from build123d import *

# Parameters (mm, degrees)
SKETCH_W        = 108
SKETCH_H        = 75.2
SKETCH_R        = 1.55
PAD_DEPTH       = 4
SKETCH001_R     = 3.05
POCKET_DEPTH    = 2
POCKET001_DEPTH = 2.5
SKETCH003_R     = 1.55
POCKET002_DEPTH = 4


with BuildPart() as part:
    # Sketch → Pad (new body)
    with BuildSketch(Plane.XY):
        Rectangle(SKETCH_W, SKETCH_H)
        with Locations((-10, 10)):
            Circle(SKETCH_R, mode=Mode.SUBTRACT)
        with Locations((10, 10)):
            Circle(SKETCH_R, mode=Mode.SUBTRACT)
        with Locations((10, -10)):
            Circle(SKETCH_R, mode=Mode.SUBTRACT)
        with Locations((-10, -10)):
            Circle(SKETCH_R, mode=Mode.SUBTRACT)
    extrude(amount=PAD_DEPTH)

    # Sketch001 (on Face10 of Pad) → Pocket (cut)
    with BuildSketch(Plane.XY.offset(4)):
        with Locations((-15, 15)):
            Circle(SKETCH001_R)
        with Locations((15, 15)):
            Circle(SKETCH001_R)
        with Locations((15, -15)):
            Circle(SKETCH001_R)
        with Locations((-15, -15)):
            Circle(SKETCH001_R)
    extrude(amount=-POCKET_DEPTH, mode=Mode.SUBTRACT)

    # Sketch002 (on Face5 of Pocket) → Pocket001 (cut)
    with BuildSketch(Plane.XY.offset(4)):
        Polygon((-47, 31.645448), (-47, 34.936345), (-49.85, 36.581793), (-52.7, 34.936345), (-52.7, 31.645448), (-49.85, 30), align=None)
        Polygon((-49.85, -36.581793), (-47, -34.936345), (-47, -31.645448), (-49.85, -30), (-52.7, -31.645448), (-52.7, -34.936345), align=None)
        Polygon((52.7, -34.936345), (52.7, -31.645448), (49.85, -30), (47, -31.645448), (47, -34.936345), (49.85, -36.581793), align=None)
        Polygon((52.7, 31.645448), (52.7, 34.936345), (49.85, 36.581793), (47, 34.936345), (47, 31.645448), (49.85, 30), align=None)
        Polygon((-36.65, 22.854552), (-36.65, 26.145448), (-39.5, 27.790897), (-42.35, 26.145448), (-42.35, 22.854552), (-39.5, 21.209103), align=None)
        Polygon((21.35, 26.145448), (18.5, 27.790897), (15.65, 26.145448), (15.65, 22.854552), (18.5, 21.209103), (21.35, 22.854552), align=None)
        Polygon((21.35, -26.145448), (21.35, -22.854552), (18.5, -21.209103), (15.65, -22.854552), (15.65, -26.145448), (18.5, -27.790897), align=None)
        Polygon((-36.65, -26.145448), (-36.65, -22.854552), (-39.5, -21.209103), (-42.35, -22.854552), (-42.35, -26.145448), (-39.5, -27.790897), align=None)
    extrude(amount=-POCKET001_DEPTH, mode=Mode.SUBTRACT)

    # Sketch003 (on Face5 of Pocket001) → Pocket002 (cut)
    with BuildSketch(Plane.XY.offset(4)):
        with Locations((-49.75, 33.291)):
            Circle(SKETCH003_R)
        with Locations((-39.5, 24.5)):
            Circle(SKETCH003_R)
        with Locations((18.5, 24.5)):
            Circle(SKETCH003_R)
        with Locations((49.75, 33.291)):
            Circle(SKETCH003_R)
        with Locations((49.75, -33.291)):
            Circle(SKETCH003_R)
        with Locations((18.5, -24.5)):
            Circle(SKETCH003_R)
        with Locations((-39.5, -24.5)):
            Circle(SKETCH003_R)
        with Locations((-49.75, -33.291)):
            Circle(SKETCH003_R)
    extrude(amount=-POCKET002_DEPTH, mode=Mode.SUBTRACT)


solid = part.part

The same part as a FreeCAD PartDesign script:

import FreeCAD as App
import Part
import Sketcher

V = App.Vector
Q = App.Units.Quantity

doc = App.newDocument("Part")
body = doc.addObject("PartDesign::Body", "Body")

# Sketch on XY plane
sketch1 = body.newObject("Sketcher::SketchObject", "Sketch")
sketch1.AttachmentSupport = (doc.getObject("XY_Plane"), [""])
sketch1.MapMode = "FlatFace"
sketch1.addGeometry([
    Part.LineSegment(V(-54, 37.6, 0), V(-54, -37.6, 0)),  # 0
    Part.LineSegment(V(-54, -37.6, 0), V(54, -37.6, 0)),  # 1
    Part.LineSegment(V(54, -37.6, 0), V(54, 37.6, 0)),  # 2
    Part.LineSegment(V(54, 37.6, 0), V(-54, 37.6, 0)),  # 3
    Part.Circle(V(-10, -10, 0), V(0, 0, 1), 1.55),  # 4
    Part.Circle(V(10, -10, 0), V(0, 0, 1), 1.55),  # 5
    Part.Circle(V(-10, 10, 0), V(0, 0, 1), 1.55),  # 6
    Part.Circle(V(10, 10, 0), V(0, 0, 1), 1.55),  # 7
], False)
sketch1.addConstraint([
    Sketcher.Constraint("Coincident", 0, 2, 1, 1),
    Sketcher.Constraint("Coincident", 1, 2, 2, 1),
    Sketcher.Constraint("Coincident", 2, 2, 3, 1),
    Sketcher.Constraint("Coincident", 3, 2, 0, 1),
    Sketcher.Constraint("Vertical", 0),
    Sketcher.Constraint("Horizontal", 1),
    Sketcher.Constraint("Vertical", 2),
    Sketcher.Constraint("Horizontal", 3),
    Sketcher.Constraint("Equal", 4, 5),
    Sketcher.Constraint("Equal", 5, 6),
    Sketcher.Constraint("Equal", 6, 7),
    Sketcher.Constraint("Symmetric", 5, 3, 6, 3, -1, 1),
    Sketcher.Constraint("Symmetric", 4, 3, 7, 3, -1, 1),
    Sketcher.Constraint("Symmetric", 0, 2, 2, 2, -1, 1),
    Sketcher.Constraint("Symmetric", 4, 3, 5, 3, -2),
    Sketcher.Constraint("Diameter", 4, Q("3.1 mm")),
    Sketcher.Constraint("DistanceX", 1, 1, 1, 2, Q("108 mm")),
    Sketcher.Constraint("DistanceY", 0, 2, 0, 1, Q("75.2 mm")),
    Sketcher.Constraint("DistanceX", 4, 3, -1, 1, Q("10 mm")),
    Sketcher.Constraint("DistanceY", 4, 3, -1, 1, Q("10 mm")),
])
pad1 = body.newObject("PartDesign::Pad", "Pad")
pad1.Profile = sketch1
pad1.Length = 4

# Sketch on XY plane
sketch2 = body.newObject("Sketcher::SketchObject", "Sketch001")
sketch2.AttachmentSupport = (doc.getObject("XY_Plane"), [""])
sketch2.MapMode = "FlatFace"
sketch2.AttachmentOffset = App.Placement(V(0, 0, 4), App.Rotation())
sketch2.addGeometry([
    Part.Circle(V(-15, 15, 0), V(0, 0, 1), 3.05),
    Part.Circle(V(15, 15, 0), V(0, 0, 1), 3.05),
    Part.Circle(V(15, -15, 0), V(0, 0, 1), 3.05),
    Part.Circle(V(-15, -15, 0), V(0, 0, 1), 3.05),
], False)
sketch2.addConstraint([
    Sketcher.Constraint("Equal", 0, 1),
    Sketcher.Constraint("Equal", 1, 2),
    Sketcher.Constraint("Equal", 2, 3),
    Sketcher.Constraint("Symmetric", 0, 3, 2, 3, -1, 1),
    Sketcher.Constraint("Symmetric", 1, 3, 3, 3, -1, 1),
    Sketcher.Constraint("Symmetric", 0, 3, 1, 3, -2),
    Sketcher.Constraint("Diameter", 0, Q("6.1 mm")),
    Sketcher.Constraint("DistanceX", 0, 3, -1, 1, Q("15 mm")),
    Sketcher.Constraint("DistanceY", -1, 1, 0, 3, Q("15 mm")),
])
pocket1 = body.newObject("PartDesign::Pocket", "Pocket")
pocket1.Profile = sketch2
pocket1.Length = 2

# Sketch on XY plane
sketch3 = body.newObject("Sketcher::SketchObject", "Sketch002")
sketch3.AttachmentSupport = (doc.getObject("XY_Plane"), [""])
sketch3.MapMode = "FlatFace"
sketch3.AttachmentOffset = App.Placement(V(0, 0, 4), App.Rotation())
sketch3.addGeometry([
    Part.LineSegment(V(-47, 31.645448, 0), V(-47, 34.936345, 0)),  # 0
    Part.LineSegment(V(-47, 34.936345, 0), V(-49.85, 36.581793, 0)),  # 1
    Part.LineSegment(V(-49.85, 36.581793, 0), V(-52.7, 34.936345, 0)),  # 2
    Part.LineSegment(V(-52.7, 34.936345, 0), V(-52.7, 31.645448, 0)),  # 3
    Part.LineSegment(V(-52.7, 31.645448, 0), V(-49.85, 30, 0)),  # 4
    Part.LineSegment(V(-49.85, 30, 0), V(-47, 31.645448, 0)),  # 5
    Part.LineSegment(V(-49.85, -36.581793, 0), V(-47, -34.936345, 0)),  # 6
    Part.LineSegment(V(-47, -34.936345, 0), V(-47, -31.645448, 0)),  # 7
    Part.LineSegment(V(-47, -31.645448, 0), V(-49.85, -30, 0)),  # 8
    Part.LineSegment(V(-49.85, -30, 0), V(-52.7, -31.645448, 0)),  # 9
    Part.LineSegment(V(-52.7, -31.645448, 0), V(-52.7, -34.936345, 0)),  # 10
    Part.LineSegment(V(-52.7, -34.936345, 0), V(-49.85, -36.581793, 0)),  # 11
    Part.LineSegment(V(52.7, -34.936345, 0), V(52.7, -31.645448, 0)),  # 12
    Part.LineSegment(V(52.7, -31.645448, 0), V(49.85, -30, 0)),  # 13
    Part.LineSegment(V(49.85, -30, 0), V(47, -31.645448, 0)),  # 14
    Part.LineSegment(V(47, -31.645448, 0), V(47, -34.936345, 0)),  # 15
    Part.LineSegment(V(47, -34.936345, 0), V(49.85, -36.581793, 0)),  # 16
    Part.LineSegment(V(49.85, -36.581793, 0), V(52.7, -34.936345, 0)),  # 17
    Part.LineSegment(V(52.7, 31.645448, 0), V(52.7, 34.936345, 0)),  # 18
    Part.LineSegment(V(52.7, 34.936345, 0), V(49.85, 36.581793, 0)),  # 19
    Part.LineSegment(V(49.85, 36.581793, 0), V(47, 34.936345, 0)),  # 20
    Part.LineSegment(V(47, 34.936345, 0), V(47, 31.645448, 0)),  # 21
    Part.LineSegment(V(47, 31.645448, 0), V(49.85, 30, 0)),  # 22
    Part.LineSegment(V(49.85, 30, 0), V(52.7, 31.645448, 0)),  # 23
    Part.LineSegment(V(-36.65, 22.854552, 0), V(-36.65, 26.145448, 0)),  # 24
    Part.LineSegment(V(-36.65, 26.145448, 0), V(-39.5, 27.790897, 0)),  # 25
    Part.LineSegment(V(-39.5, 27.790897, 0), V(-42.35, 26.145448, 0)),  # 26
    Part.LineSegment(V(-42.35, 26.145448, 0), V(-42.35, 22.854552, 0)),  # 27
    Part.LineSegment(V(-42.35, 22.854552, 0), V(-39.5, 21.209103, 0)),  # 28
    Part.LineSegment(V(-39.5, 21.209103, 0), V(-36.65, 22.854552, 0)),  # 29
    Part.LineSegment(V(21.35, 26.145448, 0), V(18.5, 27.790897, 0)),  # 30
    Part.LineSegment(V(18.5, 27.790897, 0), V(15.65, 26.145448, 0)),  # 31
    Part.LineSegment(V(15.65, 26.145448, 0), V(15.65, 22.854552, 0)),  # 32
    Part.LineSegment(V(15.65, 22.854552, 0), V(18.5, 21.209103, 0)),  # 33
    Part.LineSegment(V(18.5, 21.209103, 0), V(21.35, 22.854552, 0)),  # 34
    Part.LineSegment(V(21.35, 22.854552, 0), V(21.35, 26.145448, 0)),  # 35
    Part.LineSegment(V(21.35, -26.145448, 0), V(21.35, -22.854552, 0)),  # 36
    Part.LineSegment(V(21.35, -22.854552, 0), V(18.5, -21.209103, 0)),  # 37
    Part.LineSegment(V(18.5, -21.209103, 0), V(15.65, -22.854552, 0)),  # 38
    Part.LineSegment(V(15.65, -22.854552, 0), V(15.65, -26.145448, 0)),  # 39
    Part.LineSegment(V(15.65, -26.145448, 0), V(18.5, -27.790897, 0)),  # 40
    Part.LineSegment(V(18.5, -27.790897, 0), V(21.35, -26.145448, 0)),  # 41
    Part.LineSegment(V(-36.65, -26.145448, 0), V(-36.65, -22.854552, 0)),  # 42
    Part.LineSegment(V(-36.65, -22.854552, 0), V(-39.5, -21.209103, 0)),  # 43
    Part.LineSegment(V(-39.5, -21.209103, 0), V(-42.35, -22.854552, 0)),  # 44
    Part.LineSegment(V(-42.35, -22.854552, 0), V(-42.35, -26.145448, 0)),  # 45
    Part.LineSegment(V(-42.35, -26.145448, 0), V(-39.5, -27.790897, 0)),  # 46
    Part.LineSegment(V(-39.5, -27.790897, 0), V(-36.65, -26.145448, 0)),  # 47
], False)
sketch3.addConstraint([
    Sketcher.Constraint("Coincident", 0, 2, 1, 1),
    Sketcher.Constraint("Coincident", 1, 2, 2, 1),
    Sketcher.Constraint("Coincident", 2, 2, 3, 1),
    Sketcher.Constraint("Coincident", 3, 2, 4, 1),
    Sketcher.Constraint("Coincident", 4, 2, 5, 1),
    Sketcher.Constraint("Coincident", 5, 2, 0, 1),
    Sketcher.Constraint("Coincident", 6, 2, 7, 1),
    Sketcher.Constraint("Coincident", 7, 2, 8, 1),
    Sketcher.Constraint("Coincident", 8, 2, 9, 1),
    Sketcher.Constraint("Coincident", 9, 2, 10, 1),
    Sketcher.Constraint("Coincident", 10, 2, 11, 1),
    Sketcher.Constraint("Coincident", 11, 2, 6, 1),
    Sketcher.Constraint("Coincident", 12, 2, 13, 1),
    Sketcher.Constraint("Coincident", 13, 2, 14, 1),
    Sketcher.Constraint("Coincident", 14, 2, 15, 1),
    Sketcher.Constraint("Coincident", 15, 2, 16, 1),
    Sketcher.Constraint("Coincident", 16, 2, 17, 1),
    Sketcher.Constraint("Coincident", 17, 2, 12, 1),
    Sketcher.Constraint("Coincident", 18, 2, 19, 1),
    Sketcher.Constraint("Coincident", 19, 2, 20, 1),
    Sketcher.Constraint("Coincident", 20, 2, 21, 1),
    Sketcher.Constraint("Coincident", 21, 2, 22, 1),
    Sketcher.Constraint("Coincident", 22, 2, 23, 1),
    Sketcher.Constraint("Coincident", 23, 2, 18, 1),
    Sketcher.Constraint("Coincident", 24, 2, 25, 1),
    Sketcher.Constraint("Coincident", 25, 2, 26, 1),
    Sketcher.Constraint("Coincident", 26, 2, 27, 1),
    Sketcher.Constraint("Coincident", 27, 2, 28, 1),
    Sketcher.Constraint("Coincident", 28, 2, 29, 1),
    Sketcher.Constraint("Coincident", 29, 2, 24, 1),
    Sketcher.Constraint("Coincident", 30, 2, 31, 1),
    Sketcher.Constraint("Coincident", 31, 2, 32, 1),
    Sketcher.Constraint("Coincident", 32, 2, 33, 1),
    Sketcher.Constraint("Coincident", 33, 2, 34, 1),
    Sketcher.Constraint("Coincident", 34, 2, 35, 1),
    Sketcher.Constraint("Coincident", 35, 2, 30, 1),
    Sketcher.Constraint("Coincident", 36, 2, 37, 1),
    Sketcher.Constraint("Coincident", 37, 2, 38, 1),
    Sketcher.Constraint("Coincident", 38, 2, 39, 1),
    Sketcher.Constraint("Coincident", 39, 2, 40, 1),
    Sketcher.Constraint("Coincident", 40, 2, 41, 1),
    Sketcher.Constraint("Coincident", 41, 2, 36, 1),
    Sketcher.Constraint("Coincident", 42, 2, 43, 1),
    Sketcher.Constraint("Coincident", 43, 2, 44, 1),
    Sketcher.Constraint("Coincident", 44, 2, 45, 1),
    Sketcher.Constraint("Coincident", 45, 2, 46, 1),
    Sketcher.Constraint("Coincident", 46, 2, 47, 1),
    Sketcher.Constraint("Coincident", 47, 2, 42, 1),
    Sketcher.Constraint("Vertical", 0),
    Sketcher.Constraint("Vertical", 3),
    Sketcher.Constraint("Vertical", 7),
    Sketcher.Constraint("Vertical", 10),
    Sketcher.Constraint("Vertical", 12),
    Sketcher.Constraint("Vertical", 15),
    Sketcher.Constraint("Vertical", 18),
    Sketcher.Constraint("Vertical", 21),
    Sketcher.Constraint("Vertical", 24),
    Sketcher.Constraint("Vertical", 27),
    Sketcher.Constraint("Vertical", 32),
    Sketcher.Constraint("Vertical", 35),
    Sketcher.Constraint("Vertical", 36),
    Sketcher.Constraint("Vertical", 39),
    Sketcher.Constraint("Vertical", 42),
    Sketcher.Constraint("Vertical", 45),
    Sketcher.Constraint("Symmetric", 3, 2, 12, 2, -1, 1),
    Sketcher.Constraint("Symmetric", 4, 2, 13, 2, -1, 1),
    Sketcher.Constraint("Symmetric", 5, 2, 14, 2, -1, 1),
    Sketcher.Constraint("Symmetric", 1, 2, 16, 2, -1, 1),
    Sketcher.Constraint("Symmetric", 10, 2, 18, 2, -1, 1),
    Sketcher.Constraint("Symmetric", 11, 2, 19, 2, -1, 1),
    Sketcher.Constraint("Symmetric", 6, 2, 20, 2, -1, 1),
    Sketcher.Constraint("Symmetric", 8, 2, 22, 2, -1, 1),
    Sketcher.Constraint("Symmetric", 9, 2, 12, 2, -2),
    Sketcher.Constraint("Symmetric", 8, 2, 13, 2, -2),
    Sketcher.Constraint("Symmetric", 7, 2, 14, 2, -2),
    Sketcher.Constraint("Symmetric", 11, 2, 16, 2, -2),
    Sketcher.Constraint("Symmetric", 34, 2, 36, 2, -1),
    Sketcher.Constraint("Symmetric", 33, 2, 37, 2, -1),
    Sketcher.Constraint("Symmetric", 32, 2, 38, 2, -1),
    Sketcher.Constraint("Symmetric", 30, 2, 40, 2, -1),
    Sketcher.Constraint("Symmetric", 29, 2, 42, 2, -1),
    Sketcher.Constraint("Symmetric", 28, 2, 43, 2, -1),
    Sketcher.Constraint("Symmetric", 27, 2, 44, 2, -1),
    Sketcher.Constraint("Symmetric", 25, 2, 46, 2, -1),
    Sketcher.Constraint("Parallel", 1, 4),
    Sketcher.Constraint("Parallel", 2, 5),
    Sketcher.Constraint("Parallel", 5, 6),
    Sketcher.Constraint("Parallel", 4, 8),
    Sketcher.Constraint("Parallel", 8, 11),
    Sketcher.Constraint("Parallel", 13, 16),
    Sketcher.Constraint("Parallel", 14, 17),
    Sketcher.Constraint("Parallel", 19, 22),
    Sketcher.Constraint("Parallel", 20, 23),
    Sketcher.Constraint("Parallel", 22, 25),
    Sketcher.Constraint("Parallel", 23, 26),
    Sketcher.Constraint("Parallel", 25, 28),
    Sketcher.Constraint("Parallel", 26, 29),
    Sketcher.Constraint("Parallel", 28, 30),
    Sketcher.Constraint("Parallel", 29, 31),
    Sketcher.Constraint("Parallel", 30, 33),
    Sketcher.Constraint("Parallel", 31, 34),
    Sketcher.Constraint("Parallel", 37, 40),
    Sketcher.Constraint("Parallel", 38, 41),
    Sketcher.Constraint("Parallel", 43, 46),
    Sketcher.Constraint("Parallel", 44, 47),
    Sketcher.Constraint("Horizontal", 0, 2, 2, 2),
    Sketcher.Constraint("Horizontal", 3, 2, 5, 2),
    Sketcher.Constraint("Horizontal", 24, 2, 26, 2),
    Sketcher.Constraint("Horizontal", 27, 2, 29, 2),
    Sketcher.Constraint("Horizontal", 25, 2, 30, 2),
    Sketcher.Constraint("Horizontal", 26, 2, 31, 2),
    Sketcher.Constraint("Horizontal", 29, 2, 32, 2),
    Sketcher.Constraint("Horizontal", 28, 2, 33, 2),
    Sketcher.Constraint("Horizontal", 32, 2, 34, 2),
    Sketcher.Constraint("Equal", 21, 24),
    Sketcher.Constraint("Equal", 23, 25),
    Sketcher.Constraint("Angle", 1, Q("150.000004 deg")),
    Sketcher.Constraint("DistanceX", 0, 2, -1, 1, Q("47 mm")),
    Sketcher.Constraint("DistanceY", -1, 1, 4, 2, Q("30 mm")),
    Sketcher.Constraint("DistanceX", 2, 2, -1, 1, Q("52.7 mm")),
    Sketcher.Constraint("DistanceX", 25, 2, -1, 1, Q("39.5 mm")),
    Sketcher.Constraint("DistanceX", -1, 1, 30, 2, Q("18.5 mm")),
    Sketcher.Constraint("DistanceY", 24, 2, 5, 2, Q("5.5 mm")),
    Sketcher.Constraint("DistanceY", 0, 1, 0, 2, Q("3.290897 mm")),
])
pocket2 = body.newObject("PartDesign::Pocket", "Pocket001")
pocket2.Profile = sketch3
pocket2.Length = 2.5

# Sketch on XY plane
sketch4 = body.newObject("Sketcher::SketchObject", "Sketch003")
sketch4.AttachmentSupport = (doc.getObject("XY_Plane"), [""])
sketch4.MapMode = "FlatFace"
sketch4.AttachmentOffset = App.Placement(V(0, 0, 4), App.Rotation())
sketch4.addGeometry([
    Part.Circle(V(-49.75, 33.291, 0), V(0, 0, 1), 1.55),  # 0
    Part.Circle(V(-39.5, 24.5, 0), V(0, 0, 1), 1.55),  # 1
    Part.Circle(V(18.5, 24.5, 0), V(0, 0, 1), 1.55),  # 2
    Part.Circle(V(49.75, 33.291, 0), V(0, 0, 1), 1.55),  # 3
    Part.Circle(V(49.75, -33.291, 0), V(0, 0, 1), 1.55),  # 4
    Part.Circle(V(18.5, -24.5, 0), V(0, 0, 1), 1.55),  # 5
    Part.Circle(V(-39.5, -24.5, 0), V(0, 0, 1), 1.55),  # 6
    Part.Circle(V(-49.75, -33.291, 0), V(0, 0, 1), 1.55),  # 7
], False)
sketch4.addConstraint([
    Sketcher.Constraint("Equal", 0, 1),
    Sketcher.Constraint("Equal", 1, 2),
    Sketcher.Constraint("Equal", 2, 3),
    Sketcher.Constraint("Equal", 3, 4),
    Sketcher.Constraint("Equal", 4, 5),
    Sketcher.Constraint("Equal", 5, 6),
    Sketcher.Constraint("Equal", 6, 7),
    Sketcher.Constraint("Symmetric", 0, 3, 4, 3, -1, 1),
    Sketcher.Constraint("Symmetric", 3, 3, 7, 3, -1, 1),
    Sketcher.Constraint("Symmetric", 0, 3, 3, 3, -2),
    Sketcher.Constraint("Symmetric", 2, 3, 5, 3, -1),
    Sketcher.Constraint("Symmetric", 1, 3, 6, 3, -1),
    Sketcher.Constraint("Horizontal", 1, 3, 2, 3),
    Sketcher.Constraint("Diameter", 0, Q("3.1 mm")),
    Sketcher.Constraint("DistanceX", 1, 3, 2, 3, Q("58 mm")),
    Sketcher.Constraint("DistanceY", 5, 3, 2, 3, Q("49 mm")),
    Sketcher.Constraint("DistanceX", 1, 3, -1, 1, Q("39.5 mm")),
    Sketcher.Constraint("DistanceX", 0, 3, 3, 3, Q("99.5 mm")),
    Sketcher.Constraint("DistanceY", -1, 1, 0, 3, Q("33.291 mm")),
])
pocket3 = body.newObject("PartDesign::Pocket", "Pocket002")
pocket3.Profile = sketch4
pocket3.Length = 4

doc.recompute()
